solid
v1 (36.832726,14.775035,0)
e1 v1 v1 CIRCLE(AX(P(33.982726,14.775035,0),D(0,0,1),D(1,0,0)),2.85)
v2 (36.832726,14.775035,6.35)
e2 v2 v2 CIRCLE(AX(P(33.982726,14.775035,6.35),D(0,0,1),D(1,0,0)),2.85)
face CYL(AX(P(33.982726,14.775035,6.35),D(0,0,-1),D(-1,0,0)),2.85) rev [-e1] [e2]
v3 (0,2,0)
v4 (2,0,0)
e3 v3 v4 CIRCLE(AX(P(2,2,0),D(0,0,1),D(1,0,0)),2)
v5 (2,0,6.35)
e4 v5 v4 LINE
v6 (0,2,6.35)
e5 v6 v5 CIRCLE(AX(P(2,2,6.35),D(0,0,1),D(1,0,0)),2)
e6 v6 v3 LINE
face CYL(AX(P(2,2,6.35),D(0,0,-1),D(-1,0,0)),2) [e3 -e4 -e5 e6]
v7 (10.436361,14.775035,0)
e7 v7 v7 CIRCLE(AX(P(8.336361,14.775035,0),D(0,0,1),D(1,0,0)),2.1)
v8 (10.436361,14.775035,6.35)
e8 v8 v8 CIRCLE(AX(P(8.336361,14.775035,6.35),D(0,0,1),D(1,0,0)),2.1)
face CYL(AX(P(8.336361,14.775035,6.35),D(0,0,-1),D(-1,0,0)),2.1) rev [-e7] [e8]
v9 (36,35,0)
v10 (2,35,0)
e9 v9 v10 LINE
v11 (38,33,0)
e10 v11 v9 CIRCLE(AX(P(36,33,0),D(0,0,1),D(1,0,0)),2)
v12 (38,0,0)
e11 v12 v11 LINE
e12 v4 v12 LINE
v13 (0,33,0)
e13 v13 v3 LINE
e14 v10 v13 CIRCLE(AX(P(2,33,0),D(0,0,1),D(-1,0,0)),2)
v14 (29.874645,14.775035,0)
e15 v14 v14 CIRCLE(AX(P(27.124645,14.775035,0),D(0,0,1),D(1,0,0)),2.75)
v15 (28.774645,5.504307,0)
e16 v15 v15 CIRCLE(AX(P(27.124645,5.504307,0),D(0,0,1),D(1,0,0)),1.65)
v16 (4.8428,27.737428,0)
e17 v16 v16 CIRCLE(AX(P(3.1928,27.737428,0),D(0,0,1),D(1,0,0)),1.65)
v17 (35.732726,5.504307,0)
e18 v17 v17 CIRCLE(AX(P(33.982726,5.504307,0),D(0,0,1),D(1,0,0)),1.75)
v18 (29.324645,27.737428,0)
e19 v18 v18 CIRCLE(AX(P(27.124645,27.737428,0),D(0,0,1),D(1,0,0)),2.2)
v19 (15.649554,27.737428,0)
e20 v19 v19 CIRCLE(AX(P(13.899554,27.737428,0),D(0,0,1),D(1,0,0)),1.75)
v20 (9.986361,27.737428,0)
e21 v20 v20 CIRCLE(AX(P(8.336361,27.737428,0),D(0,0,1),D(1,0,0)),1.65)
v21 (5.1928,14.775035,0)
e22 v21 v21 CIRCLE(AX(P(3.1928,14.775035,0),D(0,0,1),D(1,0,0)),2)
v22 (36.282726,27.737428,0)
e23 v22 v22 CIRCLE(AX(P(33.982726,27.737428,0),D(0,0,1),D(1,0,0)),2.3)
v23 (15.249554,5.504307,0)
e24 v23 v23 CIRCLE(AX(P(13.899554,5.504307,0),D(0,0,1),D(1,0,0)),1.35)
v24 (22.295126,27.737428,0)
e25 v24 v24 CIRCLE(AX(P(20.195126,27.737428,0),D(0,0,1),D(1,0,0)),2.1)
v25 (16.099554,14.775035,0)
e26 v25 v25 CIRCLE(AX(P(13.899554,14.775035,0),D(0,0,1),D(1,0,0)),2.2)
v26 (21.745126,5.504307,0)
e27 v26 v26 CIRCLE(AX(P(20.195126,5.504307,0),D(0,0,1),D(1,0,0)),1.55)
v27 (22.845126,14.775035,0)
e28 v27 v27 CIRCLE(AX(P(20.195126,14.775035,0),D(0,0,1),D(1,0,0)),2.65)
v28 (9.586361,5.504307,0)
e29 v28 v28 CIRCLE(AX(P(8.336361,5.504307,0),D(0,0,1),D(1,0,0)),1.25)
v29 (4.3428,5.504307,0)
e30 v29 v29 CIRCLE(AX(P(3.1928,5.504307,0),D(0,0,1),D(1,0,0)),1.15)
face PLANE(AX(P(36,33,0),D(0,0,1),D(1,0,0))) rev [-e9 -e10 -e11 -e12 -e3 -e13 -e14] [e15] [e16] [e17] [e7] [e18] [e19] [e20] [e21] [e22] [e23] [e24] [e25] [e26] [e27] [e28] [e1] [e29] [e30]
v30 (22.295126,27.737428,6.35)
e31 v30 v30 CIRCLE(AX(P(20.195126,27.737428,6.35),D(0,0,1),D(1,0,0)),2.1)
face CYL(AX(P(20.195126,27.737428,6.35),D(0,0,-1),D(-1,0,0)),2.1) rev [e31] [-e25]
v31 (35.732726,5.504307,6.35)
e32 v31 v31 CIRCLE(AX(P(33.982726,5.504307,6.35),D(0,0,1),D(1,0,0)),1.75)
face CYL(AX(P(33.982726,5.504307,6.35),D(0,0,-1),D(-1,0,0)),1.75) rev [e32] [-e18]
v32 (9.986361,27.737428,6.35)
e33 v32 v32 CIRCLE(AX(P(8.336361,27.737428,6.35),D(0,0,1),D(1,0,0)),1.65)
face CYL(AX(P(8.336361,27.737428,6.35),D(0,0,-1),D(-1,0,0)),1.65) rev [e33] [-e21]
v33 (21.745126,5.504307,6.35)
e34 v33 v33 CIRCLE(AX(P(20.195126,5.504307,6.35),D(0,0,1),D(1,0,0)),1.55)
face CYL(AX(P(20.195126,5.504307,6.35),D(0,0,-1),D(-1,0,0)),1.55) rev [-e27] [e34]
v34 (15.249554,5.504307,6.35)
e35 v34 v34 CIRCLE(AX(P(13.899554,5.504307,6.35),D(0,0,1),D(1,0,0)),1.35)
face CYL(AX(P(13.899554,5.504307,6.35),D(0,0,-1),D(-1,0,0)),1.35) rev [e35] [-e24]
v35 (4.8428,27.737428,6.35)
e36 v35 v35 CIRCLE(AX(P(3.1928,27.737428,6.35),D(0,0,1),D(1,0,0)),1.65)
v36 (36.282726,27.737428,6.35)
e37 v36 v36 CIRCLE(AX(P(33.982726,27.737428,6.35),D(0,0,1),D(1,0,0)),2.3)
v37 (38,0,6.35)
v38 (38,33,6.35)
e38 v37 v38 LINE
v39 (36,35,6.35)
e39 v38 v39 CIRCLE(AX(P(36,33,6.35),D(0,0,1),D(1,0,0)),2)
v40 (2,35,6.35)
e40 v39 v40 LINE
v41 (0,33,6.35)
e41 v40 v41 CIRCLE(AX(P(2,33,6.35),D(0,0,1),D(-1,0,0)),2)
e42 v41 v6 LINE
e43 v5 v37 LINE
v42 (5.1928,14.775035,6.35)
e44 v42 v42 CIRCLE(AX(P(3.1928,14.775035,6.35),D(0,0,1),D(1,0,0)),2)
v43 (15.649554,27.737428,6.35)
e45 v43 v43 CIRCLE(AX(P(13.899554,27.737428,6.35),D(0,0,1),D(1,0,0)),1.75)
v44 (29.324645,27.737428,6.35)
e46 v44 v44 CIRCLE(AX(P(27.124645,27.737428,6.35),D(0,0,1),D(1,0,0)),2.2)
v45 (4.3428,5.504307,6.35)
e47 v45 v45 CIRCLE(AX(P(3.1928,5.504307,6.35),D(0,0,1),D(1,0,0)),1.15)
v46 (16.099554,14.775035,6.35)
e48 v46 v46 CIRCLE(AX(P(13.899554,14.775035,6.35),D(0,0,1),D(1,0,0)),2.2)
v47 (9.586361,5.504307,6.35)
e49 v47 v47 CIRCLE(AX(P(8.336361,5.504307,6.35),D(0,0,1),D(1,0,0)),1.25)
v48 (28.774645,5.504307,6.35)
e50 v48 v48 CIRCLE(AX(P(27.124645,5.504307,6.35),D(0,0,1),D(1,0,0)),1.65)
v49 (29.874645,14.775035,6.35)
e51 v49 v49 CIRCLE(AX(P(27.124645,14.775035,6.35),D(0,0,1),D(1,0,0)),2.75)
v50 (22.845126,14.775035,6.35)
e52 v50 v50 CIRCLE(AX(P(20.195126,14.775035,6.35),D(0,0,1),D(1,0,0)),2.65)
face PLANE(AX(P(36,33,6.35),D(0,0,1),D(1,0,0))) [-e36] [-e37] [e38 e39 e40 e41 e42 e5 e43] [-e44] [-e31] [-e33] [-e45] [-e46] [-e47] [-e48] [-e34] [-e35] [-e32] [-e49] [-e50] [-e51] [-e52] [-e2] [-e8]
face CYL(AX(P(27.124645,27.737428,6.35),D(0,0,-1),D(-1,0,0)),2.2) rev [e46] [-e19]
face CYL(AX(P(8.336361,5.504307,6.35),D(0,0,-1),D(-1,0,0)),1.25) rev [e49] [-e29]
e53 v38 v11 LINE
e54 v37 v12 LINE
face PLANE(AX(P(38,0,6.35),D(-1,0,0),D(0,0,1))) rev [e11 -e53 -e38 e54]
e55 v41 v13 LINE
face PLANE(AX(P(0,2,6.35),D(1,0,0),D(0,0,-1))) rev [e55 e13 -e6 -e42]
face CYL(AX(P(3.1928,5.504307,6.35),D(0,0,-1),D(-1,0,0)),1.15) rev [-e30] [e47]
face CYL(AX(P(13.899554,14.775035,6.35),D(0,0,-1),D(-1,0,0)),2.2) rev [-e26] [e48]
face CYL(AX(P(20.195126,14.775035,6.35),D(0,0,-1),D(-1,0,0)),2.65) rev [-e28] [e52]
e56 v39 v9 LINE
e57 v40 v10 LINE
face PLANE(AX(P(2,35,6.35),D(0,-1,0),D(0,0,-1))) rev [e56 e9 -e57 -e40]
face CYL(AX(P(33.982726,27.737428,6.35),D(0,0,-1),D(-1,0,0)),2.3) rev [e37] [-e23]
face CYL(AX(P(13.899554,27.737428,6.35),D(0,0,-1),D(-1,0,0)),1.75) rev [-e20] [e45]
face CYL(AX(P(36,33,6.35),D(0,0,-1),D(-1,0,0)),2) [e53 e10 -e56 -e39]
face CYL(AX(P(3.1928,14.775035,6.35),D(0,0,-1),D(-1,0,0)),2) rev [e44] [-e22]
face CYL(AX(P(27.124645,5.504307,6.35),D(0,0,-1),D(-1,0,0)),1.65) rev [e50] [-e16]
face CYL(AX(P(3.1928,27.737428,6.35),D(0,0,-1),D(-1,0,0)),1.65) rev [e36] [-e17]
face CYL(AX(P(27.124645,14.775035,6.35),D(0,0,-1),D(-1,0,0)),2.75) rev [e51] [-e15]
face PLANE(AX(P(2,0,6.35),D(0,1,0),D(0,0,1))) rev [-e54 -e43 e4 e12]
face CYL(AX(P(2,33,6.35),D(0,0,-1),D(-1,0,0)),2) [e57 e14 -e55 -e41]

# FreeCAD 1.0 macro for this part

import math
import FreeCAD as App
import Part
import Sketcher
Q = App.Units.Quantity

doc = App.newDocument("Part")
params = doc.addObject("Spreadsheet::Sheet", "Params")
for row, (alias, value) in enumerate([
    ("sketch1_diameter", "4 mm"),
    ("sketch1_diameter2", "2.3 mm"),
    ("sketch1_diameter3", "2.5 mm"),
    ("sketch1_diameter4", "2.7 mm"),
    ("sketch1_diameter5", "4.2 mm"),
    ("pad1_length", "6.35 mm"),
], start=1):
    params.set(f"A{row}", alias)
    params.set(f"B{row}", "=" + value)
    params.setAlias(f"B{row}", alias)

body = doc.addObject("PartDesign::Body", "Body")

sketch1 = body.newObject("Sketcher::SketchObject", "Sketch")
sketch1.AttachmentSupport = (doc.getObject("XY_Plane"), [""])
sketch1.MapMode = "FlatFace"
sketch1.addGeometry([
    Part.LineSegment(App.Vector(2, 0, 0), App.Vector(38, 0, 0)),
    Part.LineSegment(App.Vector(38, 0, 0), App.Vector(38, 33, 0)),
    Part.ArcOfCircle(Part.Circle(App.Vector(36, 33, 0), App.Vector(0, 0, 1), 2), math.radians(0), math.radians(90)),
    Part.LineSegment(App.Vector(36, 35, 0), App.Vector(2, 35, 0)),
    Part.ArcOfCircle(Part.Circle(App.Vector(2, 33, 0), App.Vector(0, 0, 1), 2), math.radians(90), math.radians(180)),
    Part.LineSegment(App.Vector(0, 33, 0), App.Vector(0, 2, 0)),
    Part.ArcOfCircle(Part.Circle(App.Vector(2, 2, 0), App.Vector(0, 0, 1), 2), math.radians(-180), math.radians(-90)),
    Part.Circle(App.Vector(3.2, 5.5, 0), App.Vector(0, 0, 1), 1.1),
    Part.Circle(App.Vector(8.3, 5.5, 0), App.Vector(0, 0, 1), 1.2),
    Part.Circle(App.Vector(13.9, 5.5, 0), App.Vector(0, 0, 1), 1.4),
    Part.Circle(App.Vector(3.2, 14.8, 0), App.Vector(0, 0, 1), 2),
    Part.Circle(App.Vector(8.3, 14.8, 0), App.Vector(0, 0, 1), 2.1),
    Part.Circle(App.Vector(13.9, 14.8, 0), App.Vector(0, 0, 1), 2.2),
    Part.Circle(App.Vector(20.2, 5.5, 0), App.Vector(0, 0, 1), 1.6),
    Part.Circle(App.Vector(27.1, 5.5, 0), App.Vector(0, 0, 1), 1.6),
    Part.Circle(App.Vector(34, 5.5, 0), App.Vector(0, 0, 1), 1.8),
    Part.Circle(App.Vector(20.2, 14.8, 0), App.Vector(0, 0, 1), 2.6),
    Part.Circle(App.Vector(27.1, 14.8, 0), App.Vector(0, 0, 1), 2.8),
    Part.Circle(App.Vector(34, 14.8, 0), App.Vector(0, 0, 1), 2.9),
    Part.Circle(App.Vector(3.2, 27.7, 0), App.Vector(0, 0, 1), 1.6),
    Part.Circle(App.Vector(8.3, 27.7, 0), App.Vector(0, 0, 1), 1.6),
    Part.Circle(App.Vector(13.9, 27.7, 0), App.Vector(0, 0, 1), 1.8),
    Part.Circle(App.Vector(20.2, 27.7, 0), App.Vector(0, 0, 1), 2.1),
    Part.Circle(App.Vector(27.1, 27.7, 0), App.Vector(0, 0, 1), 2.2),
    Part.Circle(App.Vector(34, 27.7, 0), App.Vector(0, 0, 1), 2.3),
], False)
sketch1.addConstraint([
    Sketcher.Constraint("Coincident", 0, 2, 1, 1),
    Sketcher.Constraint("Tangent", 1, 2, 2, 1),
    Sketcher.Constraint("Tangent", 2, 2, 3, 1),
    Sketcher.Constraint("Tangent", 3, 2, 4, 1),
    Sketcher.Constraint("Tangent", 4, 2, 5, 1),
    Sketcher.Constraint("Tangent", 5, 2, 6, 1),
    Sketcher.Constraint("Tangent", 6, 2, 0, 1),
    Sketcher.Constraint("Horizontal", 0),
    Sketcher.Constraint("Vertical", 1),
    Sketcher.Constraint("Horizontal", 3),
    Sketcher.Constraint("Vertical", 5),
    Sketcher.Constraint("Equal", 2, 4),
    Sketcher.Constraint("Equal", 4, 6),
    Sketcher.Constraint("Equal", 6, 10),
    Sketcher.Constraint("Equal", 14, 19),
    Sketcher.Constraint("Equal", 19, 20),
    Sketcher.Constraint("Equal", 15, 21),
    Sketcher.Constraint("Equal", 11, 22),
    Sketcher.Constraint("Equal", 12, 23),
    Sketcher.Constraint("PointOnObject", 0, 2, -1),
    Sketcher.Constraint("PointOnObject", 4, 2, -2),
    Sketcher.Constraint("Horizontal", 7, 3, 8, 3),
    Sketcher.Constraint("Horizontal", 8, 3, 9, 3),
    Sketcher.Constraint("Horizontal", 10, 3, 11, 3),
    Sketcher.Constraint("Horizontal", 11, 3, 12, 3),
    Sketcher.Constraint("Horizontal", 9, 3, 13, 3),
    Sketcher.Constraint("Horizontal", 13, 3, 14, 3),
    Sketcher.Constraint("Horizontal", 14, 3, 15, 3),
    Sketcher.Constraint("Horizontal", 12, 3, 16, 3),
    Sketcher.Constraint("Horizontal", 16, 3, 17, 3),
    Sketcher.Constraint("Horizontal", 17, 3, 18, 3),
    Sketcher.Constraint("Horizontal", 19, 3, 20, 3),
    Sketcher.Constraint("Horizontal", 20, 3, 21, 3),
    Sketcher.Constraint("Horizontal", 21, 3, 22, 3),
    Sketcher.Constraint("Horizontal", 22, 3, 23, 3),
    Sketcher.Constraint("Horizontal", 23, 3, 24, 3),
    Sketcher.Constraint("Vertical", 7, 3, 10, 3),
    Sketcher.Constraint("Vertical", 8, 3, 11, 3),
    Sketcher.Constraint("Vertical", 9, 3, 12, 3),
    Sketcher.Constraint("Vertical", 13, 3, 16, 3),
    Sketcher.Constraint("Vertical", 14, 3, 17, 3),
    Sketcher.Constraint("Vertical", 15, 3, 18, 3),
    Sketcher.Constraint("Vertical", 10, 3, 19, 3),
    Sketcher.Constraint("Vertical", 11, 3, 20, 3),
    Sketcher.Constraint("Vertical", 12, 3, 21, 3),
    Sketcher.Constraint("Vertical", 16, 3, 22, 3),
    Sketcher.Constraint("Vertical", 17, 3, 23, 3),
    Sketcher.Constraint("Vertical", 18, 3, 24, 3),
    Sketcher.Constraint("Diameter", 10, Q("4 mm")),
    Sketcher.Constraint("Diameter", 7, Q("2.3 mm")),
    Sketcher.Constraint("Diameter", 8, Q("2.5 mm")),
    Sketcher.Constraint("Diameter", 9, Q("2.7 mm")),
    Sketcher.Constraint("Diameter", 11, Q("4.2 mm")),
    Sketcher.Constraint("Diameter", 12, Q("4.4 mm")),
    Sketcher.Constraint("Diameter", 13, Q("3.1 mm")),
    Sketcher.Constraint("Diameter", 14, Q("3.3 mm")),
    Sketcher.Constraint("Diameter", 15, Q("3.5 mm")),
    Sketcher.Constraint("Diameter", 16, Q("5.3 mm")),
    Sketcher.Constraint("Diameter", 17, Q("5.5 mm")),
    Sketcher.Constraint("Diameter", 18, Q("5.7 mm")),
    Sketcher.Constraint("Diameter", 24, Q("4.6 mm")),
    Sketcher.Constraint("DistanceX", 0, 1, 0, 2, Q("36 mm")),
    Sketcher.Constraint("DistanceY", 1, 1, 1, 2, Q("33 mm")),
    Sketcher.Constraint("DistanceX", -1, 1, 7, 3, Q("3.1928 mm")),
    Sketcher.Constraint("DistanceX", 13, 3, 15, 3, Q("13.7876 mm")),
    Sketcher.Constraint("DistanceX", -1, 1, 8, 3, Q("8.336361 mm")),
    Sketcher.Constraint("DistanceY", -1, 1, 19, 3, Q("27.737428 mm")),
    Sketcher.Constraint("DistanceX", 9, 3, 13, 3, Q("6.295572 mm")),
    Sketcher.Constraint("DistanceX", 13, 3, 14, 3, Q("6.929519 mm")),
    Sketcher.Constraint("DistanceY", -1, 1, 7, 3, Q("5.504307 mm")),
    Sketcher.Constraint("DistanceX", -1, 1, 9, 3, Q("13.899554 mm")),
    Sketcher.Constraint("DistanceY", -1, 1, 10, 3, Q("14.775035 mm")),
])
sketch1.setExpression("Constraints[48]", "Params.sketch1_diameter")
sketch1.setExpression("Constraints[49]", "Params.sketch1_diameter2")
sketch1.setExpression("Constraints[50]", "Params.sketch1_diameter3")
sketch1.setExpression("Constraints[51]", "Params.sketch1_diameter4")
sketch1.setExpression("Constraints[52]", "Params.sketch1_diameter5")
pad1 = body.newObject("PartDesign::Pad", "Pad")
pad1.Profile = sketch1
pad1.setExpression("Length", "Params.pad1_length")

doc.recompute()
